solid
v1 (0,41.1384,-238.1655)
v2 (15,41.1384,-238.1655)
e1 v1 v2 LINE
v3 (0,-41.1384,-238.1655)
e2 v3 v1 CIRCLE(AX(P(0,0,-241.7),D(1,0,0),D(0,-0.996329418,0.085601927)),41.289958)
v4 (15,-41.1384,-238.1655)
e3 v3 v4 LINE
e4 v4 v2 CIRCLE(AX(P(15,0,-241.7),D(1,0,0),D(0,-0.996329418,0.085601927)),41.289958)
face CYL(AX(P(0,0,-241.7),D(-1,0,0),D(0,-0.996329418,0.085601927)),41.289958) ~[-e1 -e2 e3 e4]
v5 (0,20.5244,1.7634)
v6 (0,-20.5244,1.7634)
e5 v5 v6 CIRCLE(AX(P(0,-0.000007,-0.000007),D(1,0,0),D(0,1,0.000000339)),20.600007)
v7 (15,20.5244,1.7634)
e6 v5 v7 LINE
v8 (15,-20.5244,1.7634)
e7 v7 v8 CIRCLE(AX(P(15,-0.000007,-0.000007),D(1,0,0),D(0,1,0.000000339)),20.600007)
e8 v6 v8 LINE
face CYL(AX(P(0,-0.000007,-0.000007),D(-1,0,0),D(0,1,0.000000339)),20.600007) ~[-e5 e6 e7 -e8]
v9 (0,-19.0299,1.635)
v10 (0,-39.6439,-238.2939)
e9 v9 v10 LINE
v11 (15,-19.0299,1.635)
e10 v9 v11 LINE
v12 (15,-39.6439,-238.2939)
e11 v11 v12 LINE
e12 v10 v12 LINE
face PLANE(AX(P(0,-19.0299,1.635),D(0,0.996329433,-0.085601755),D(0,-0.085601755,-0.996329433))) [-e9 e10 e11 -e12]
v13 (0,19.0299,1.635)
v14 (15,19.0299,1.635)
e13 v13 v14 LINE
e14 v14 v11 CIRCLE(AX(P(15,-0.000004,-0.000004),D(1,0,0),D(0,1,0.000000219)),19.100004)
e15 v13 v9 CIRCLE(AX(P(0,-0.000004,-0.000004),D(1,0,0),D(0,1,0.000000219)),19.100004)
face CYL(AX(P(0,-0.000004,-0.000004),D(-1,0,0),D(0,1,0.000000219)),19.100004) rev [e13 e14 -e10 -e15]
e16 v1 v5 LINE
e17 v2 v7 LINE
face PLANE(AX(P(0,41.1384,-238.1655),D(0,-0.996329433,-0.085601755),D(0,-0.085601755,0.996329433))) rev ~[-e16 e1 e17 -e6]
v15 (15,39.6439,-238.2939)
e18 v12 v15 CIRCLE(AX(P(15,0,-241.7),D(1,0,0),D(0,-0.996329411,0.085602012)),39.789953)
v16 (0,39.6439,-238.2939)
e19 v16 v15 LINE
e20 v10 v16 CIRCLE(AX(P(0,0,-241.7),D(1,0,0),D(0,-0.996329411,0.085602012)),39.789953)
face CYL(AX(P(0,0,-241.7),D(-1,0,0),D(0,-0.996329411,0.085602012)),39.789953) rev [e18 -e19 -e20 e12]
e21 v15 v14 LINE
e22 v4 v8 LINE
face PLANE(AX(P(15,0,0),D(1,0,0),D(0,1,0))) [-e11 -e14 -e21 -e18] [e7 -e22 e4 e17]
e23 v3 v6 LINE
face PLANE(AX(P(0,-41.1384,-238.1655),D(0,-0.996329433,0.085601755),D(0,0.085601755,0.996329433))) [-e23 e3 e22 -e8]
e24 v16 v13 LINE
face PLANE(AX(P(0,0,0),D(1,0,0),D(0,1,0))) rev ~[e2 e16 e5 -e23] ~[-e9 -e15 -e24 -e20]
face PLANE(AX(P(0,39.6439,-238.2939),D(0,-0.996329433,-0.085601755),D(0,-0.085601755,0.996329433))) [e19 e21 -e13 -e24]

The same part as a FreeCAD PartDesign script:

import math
import FreeCAD as App
import Part
import Sketcher

V = App.Vector

doc = App.newDocument("Part")
params = doc.addObject("Spreadsheet::Sheet", "Params")
for row, (alias, value) in enumerate([
    ("sketch1_radius", "20.6 mm"),
    ("sketch1_radius2", "19.1 mm"),
    ("sketch1_radius3", "41.29 mm"),
    ("pad1_length", "15 mm"),
], start=1):
    params.set(f"A{row}", alias)
    params.set(f"B{row}", "=" + value)
    params.setAlias(f"B{row}", alias)

body = doc.addObject("PartDesign::Body", "Body")

# Sketch on YZ plane
sketch1 = body.newObject("Sketcher::SketchObject", "Sketch")
sketch1.AttachmentSupport = (doc.getObject("YZ_Plane"), [""])
sketch1.MapMode = "FlatFace"
sketch1.addGeometry([
    Part.LineSegment(V(41, -238, 0), V(21, 2, 0)),  # 0
    Part.ArcOfCircle(Part.Circle(V(0, 0, 0), V(0, 0, 1), 21), math.radians(5), math.radians(175)),  # 1
    Part.LineSegment(V(-21, 2, 0), V(-41, -238, 0)),  # 2
    Part.ArcOfCircle(Part.Circle(V(0, -242, 0), V(0, 0, 1), 41), math.radians(175), math.radians(365)),  # 3
    Part.ArcOfCircle(Part.Circle(V(0, 0, 0), V(0, 0, 1), 19), math.radians(5), math.radians(175)),  # 4
    Part.LineSegment(V(19, 2, 0), V(40, -238, 0)),  # 5
    Part.ArcOfCircle(Part.Circle(V(0, -242, 0), V(0, 0, 1), 40), math.radians(175), math.radians(365)),  # 6
    Part.LineSegment(V(-40, -238, 0), V(-19, 2, 0)),  # 7
], False)
sketch1.addConstraint([
    Sketcher.Constraint("Tangent", 0, 2, 1, 1),
    Sketcher.Constraint("Tangent", 1, 2, 2, 1),
    Sketcher.Constraint("Tangent", 2, 2, 3, 1),
    Sketcher.Constraint("Tangent", 3, 2, 0, 1),
    Sketcher.Constraint("Tangent", 4, 1, 5, 1),
    Sketcher.Constraint("Tangent", 5, 2, 6, 2),
    Sketcher.Constraint("Tangent", 6, 1, 7, 1),
    Sketcher.Constraint("Tangent", 7, 2, 4, 2),
    Sketcher.Constraint("Coincident", 1, 3, -1, 1),
    Sketcher.Constraint("Coincident", 4, 3, -1, 1),
    Sketcher.Constraint("Coincident", 6, 3, 3, 3),
    Sketcher.Constraint("PointOnObject", 3, 3, -2),
    Sketcher.Constraint("Parallel", 0, 5),
    Sketcher.Constraint("Radius", 1, 20.6),
    Sketcher.Constraint("Radius", 4, 19.1),
    Sketcher.Constraint("Radius", 3, 41.29),
    Sketcher.Constraint("DistanceY", 3, 3, -1, 1, 241.7),
])
sketch1.setExpression("Constraints[13]", "Params.sketch1_radius")
sketch1.setExpression("Constraints[14]", "Params.sketch1_radius2")
sketch1.setExpression("Constraints[15]", "Params.sketch1_radius3")
pad1 = body.newObject("PartDesign::Pad", "Pad")
pad1.Profile = sketch1
pad1.setExpression("Length", "Params.pad1_length")

doc.recompute()
